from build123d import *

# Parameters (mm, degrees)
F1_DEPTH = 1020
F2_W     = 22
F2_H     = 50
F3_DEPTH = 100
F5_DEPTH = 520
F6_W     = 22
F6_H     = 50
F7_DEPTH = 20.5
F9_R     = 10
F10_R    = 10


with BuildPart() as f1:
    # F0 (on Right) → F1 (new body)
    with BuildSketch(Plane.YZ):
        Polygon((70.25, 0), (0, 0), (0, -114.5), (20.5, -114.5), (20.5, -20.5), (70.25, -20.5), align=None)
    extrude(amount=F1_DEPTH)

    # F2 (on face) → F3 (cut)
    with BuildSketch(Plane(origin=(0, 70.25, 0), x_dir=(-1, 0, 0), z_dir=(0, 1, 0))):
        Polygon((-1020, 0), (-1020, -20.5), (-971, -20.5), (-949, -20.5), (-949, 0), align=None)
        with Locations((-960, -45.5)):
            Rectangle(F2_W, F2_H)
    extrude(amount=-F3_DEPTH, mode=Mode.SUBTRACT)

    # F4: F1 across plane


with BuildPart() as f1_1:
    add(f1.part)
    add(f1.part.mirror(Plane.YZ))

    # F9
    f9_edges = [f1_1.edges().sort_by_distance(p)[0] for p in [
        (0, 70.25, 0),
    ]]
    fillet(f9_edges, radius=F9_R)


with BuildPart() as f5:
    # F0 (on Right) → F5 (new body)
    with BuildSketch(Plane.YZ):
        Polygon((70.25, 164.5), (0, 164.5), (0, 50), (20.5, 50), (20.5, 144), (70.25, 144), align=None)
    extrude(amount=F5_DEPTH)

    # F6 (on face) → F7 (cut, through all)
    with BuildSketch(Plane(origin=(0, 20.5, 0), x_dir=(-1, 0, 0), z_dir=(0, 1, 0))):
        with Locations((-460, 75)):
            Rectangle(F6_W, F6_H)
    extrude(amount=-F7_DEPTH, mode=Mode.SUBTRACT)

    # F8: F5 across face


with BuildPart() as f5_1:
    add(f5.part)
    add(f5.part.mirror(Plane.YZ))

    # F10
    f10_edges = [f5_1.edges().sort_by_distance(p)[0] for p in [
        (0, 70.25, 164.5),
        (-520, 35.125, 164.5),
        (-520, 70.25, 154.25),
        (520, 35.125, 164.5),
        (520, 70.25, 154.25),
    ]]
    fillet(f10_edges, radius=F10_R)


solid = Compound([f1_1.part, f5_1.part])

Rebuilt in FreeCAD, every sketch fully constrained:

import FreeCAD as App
import Part
import Sketcher


def edges_at(feature, points):
    """Names of the edges that pass closest to the given points."""
    edges = feature.Shape.Edges
    near = lambda p: min(range(len(edges)), key=lambda i: edges[i].distToShape(Part.Vertex(*p))[0])
    return sorted({f"Edge{near(p) + 1}" for p in points})

doc = App.newDocument("Part")
body = doc.addObject("PartDesign::Body", "Body")

sketch1 = body.newObject("Sketcher::SketchObject", "Sketch")
sketch1.AttachmentSupport = (doc.getObject("YZ_Plane"), [""])
sketch1.MapMode = "FlatFace"
sketch1.addGeometry([
    Part.LineSegment(App.Vector(70, 0, 0), App.Vector(0, 0, 0)),
    Part.LineSegment(App.Vector(0, 0, 0), App.Vector(0, -114, 0)),
    Part.LineSegment(App.Vector(0, -114, 0), App.Vector(20, -114, 0)),
    Part.LineSegment(App.Vector(20, -114, 0), App.Vector(20, -20, 0)),
    Part.LineSegment(App.Vector(20, -20, 0), App.Vector(70, -20, 0)),
    Part.LineSegment(App.Vector(70, -20, 0), App.Vector(70, 0, 0)),
], False)
sketch1.addConstraint([
    Sketcher.Constraint("Coincident", 0, 2, 1, 1),
    Sketcher.Constraint("Coincident", 1, 2, 2, 1),
    Sketcher.Constraint("Coincident", 2, 2, 3, 1),
    Sketcher.Constraint("Coincident", 3, 2, 4, 1),
    Sketcher.Constraint("Coincident", 4, 2, 5, 1),
    Sketcher.Constraint("Coincident", 5, 2, 0, 1),
    Sketcher.Constraint("Horizontal", 0),
    Sketcher.Constraint("Vertical", 1),
    Sketcher.Constraint("Horizontal", 2),
    Sketcher.Constraint("Vertical", 3),
    Sketcher.Constraint("Horizontal", 4),
    Sketcher.Constraint("Vertical", 5),
    Sketcher.Constraint("Coincident", 0, 2, -1, 1),
    Sketcher.Constraint("Equal", 2, 5),
    Sketcher.Constraint("DistanceY", 3, 1, 3, 2, 94.0),
    Sketcher.Constraint("DistanceX", 2, 1, 2, 2, 20.5),
    Sketcher.Constraint("DistanceX", 0, 2, 0, 1, 70.25),
])
pad1 = body.newObject("PartDesign::Pad", "Pad")
pad1.Profile = sketch1
pad1.Length = 1020

sketch2 = body.newObject("Sketcher::SketchObject", "Sketch001")
sketch2.AttachmentSupport = (doc.getObject("XZ_Plane"), [""])
sketch2.MapMode = "FlatFace"
sketch2.AttachmentOffset = App.Placement(App.Vector(0, 0, -70.25), App.Rotation())
sketch2.addGeometry([
    Part.LineSegment(App.Vector(1020, 0, 0), App.Vector(1020, -20, 0)),
    Part.LineSegment(App.Vector(1020, -20, 0), App.Vector(971, -20, 0)),
    Part.LineSegment(App.Vector(971, -20, 0), App.Vector(971, -70, 0)),
    Part.LineSegment(App.Vector(971, -70, 0), App.Vector(949, -70, 0)),
    Part.LineSegment(App.Vector(949, -70, 0), App.Vector(949, 0, 0)),
    Part.LineSegment(App.Vector(949, 0, 0), App.Vector(1020, 0, 0)),
], False)
sketch2.addConstraint([
    Sketcher.Constraint("Coincident", 0, 2, 1, 1),
    Sketcher.Constraint("Coincident", 1, 2, 2, 1),
    Sketcher.Constraint("Coincident", 2, 2, 3, 1),
    Sketcher.Constraint("Coincident", 3, 2, 4, 1),
    Sketcher.Constraint("Coincident", 4, 2, 5, 1),
    Sketcher.Constraint("Coincident", 5, 2, 0, 1),
    Sketcher.Constraint("Vertical", 0),
    Sketcher.Constraint("Horizontal", 1),
    Sketcher.Constraint("Vertical", 2),
    Sketcher.Constraint("Horizontal", 3),
    Sketcher.Constraint("Vertical", 4),
    Sketcher.Constraint("Horizontal", 5),
    Sketcher.Constraint("PointOnObject", 4, 2, -1),
    Sketcher.Constraint("DistanceX", 1, 2, 1, 1, 49.0),
    Sketcher.Constraint("DistanceX", 3, 2, 3, 1, 22.0),
    Sketcher.Constraint("DistanceY", 2, 2, 2, 1, 50.0),
    Sketcher.Constraint("DistanceY", 0, 2, 0, 1, 20.5),
    Sketcher.Constraint("DistanceX", -1, 1, 0, 2, 1020.0),
])
pocket1 = body.newObject("PartDesign::Pocket", "Pocket")
pocket1.Profile = sketch2
pocket1.Length = 100
pocket1.Reversed = True
body2 = doc.addObject("PartDesign::Body", "Body001")
doc.recompute()

body2.BaseFeature = body
doc.recompute()

mirroring = doc.addObject("Part::Mirroring", "Mirroring")
mirroring.Source = body
mirroring.Base = App.Vector(0, 0, 0)
mirroring.Normal = App.Vector(1, 0, 0)
body3 = doc.addObject("PartDesign::Body", "Body002")
body3.BaseFeature = mirroring
boolean = body2.newObject("PartDesign::Boolean", "Boolean")
boolean.Type = "Fuse"
boolean.addObjects([body3])
doc.recompute()

fillet = body2.newObject("PartDesign::Fillet", "Fillet")
fillet.Base = (boolean, edges_at(boolean, [(0, 70.25, 0)]))
fillet.Radius = 10
body4 = doc.addObject("PartDesign::Body", "Body003")

sketch3 = body4.newObject("Sketcher::SketchObject", "Sketch002")
sketch3.AttachmentSupport = (doc.getObject("YZ_Plane003"), [""])
sketch3.MapMode = "FlatFace"
sketch3.addGeometry([
    Part.LineSegment(App.Vector(70, 164, 0), App.Vector(0, 164, 0)),
    Part.LineSegment(App.Vector(0, 164, 0), App.Vector(0, 50, 0)),
    Part.LineSegment(App.Vector(0, 50, 0), App.Vector(20, 50, 0)),
    Part.LineSegment(App.Vector(20, 50, 0), App.Vector(20, 144, 0)),
    Part.LineSegment(App.Vector(20, 144, 0), App.Vector(70, 144, 0)),
    Part.LineSegment(App.Vector(70, 144, 0), App.Vector(70, 164, 0)),
], False)
sketch3.addConstraint([
    Sketcher.Constraint("Coincident", 0, 2, 1, 1),
    Sketcher.Constraint("Coincident", 1, 2, 2, 1),
    Sketcher.Constraint("Coincident", 2, 2, 3, 1),
    Sketcher.Constraint("Coincident", 3, 2, 4, 1),
    Sketcher.Constraint("Coincident", 4, 2, 5, 1),
    Sketcher.Constraint("Coincident", 5, 2, 0, 1),
    Sketcher.Constraint("Horizontal", 0),
    Sketcher.Constraint("Vertical", 1),
    Sketcher.Constraint("Horizontal", 2),
    Sketcher.Constraint("Vertical", 3),
    Sketcher.Constraint("Horizontal", 4),
    Sketcher.Constraint("Vertical", 5),
    Sketcher.Constraint("PointOnObject", 0, 2, -2),
    Sketcher.Constraint("Equal", 2, 5),
    Sketcher.Constraint("DistanceY", 3, 1, 3, 2, 94.0),
    Sketcher.Constraint("DistanceX", 2, 1, 2, 2, 20.5),
    Sketcher.Constraint("DistanceY", -1, 1, 1, 2, 50.0),
    Sketcher.Constraint("DistanceX", 0, 2, 0, 1, 70.25),
])
pad2 = body4.newObject("PartDesign::Pad", "Pad001")
pad2.Profile = sketch3
pad2.Length = 520

sketch4 = body4.newObject("Sketcher::SketchObject", "Sketch003")
sketch4.AttachmentSupport = (doc.getObject("XZ_Plane003"), [""])
sketch4.MapMode = "FlatFace"
sketch4.AttachmentOffset = App.Placement(App.Vector(0, 0, -20.5), App.Rotation())
sketch4.addGeometry([
    Part.LineSegment(App.Vector(471, 100, 0), App.Vector(471, 50, 0)),
    Part.LineSegment(App.Vector(471, 50, 0), App.Vector(449, 50, 0)),
    Part.LineSegment(App.Vector(449, 50, 0), App.Vector(449, 100, 0)),
    Part.LineSegment(App.Vector(449, 100, 0), App.Vector(471, 100, 0)),
], False)
sketch4.addConstraint([
    Sketcher.Constraint("Coincident", 0, 2, 1, 1),
    Sketcher.Constraint("Coincident", 1, 2, 2, 1),
    Sketcher.Constraint("Coincident", 2, 2, 3, 1),
    Sketcher.Constraint("Coincident", 3, 2, 0, 1),
    Sketcher.Constraint("Vertical", 0),
    Sketcher.Constraint("Horizontal", 1),
    Sketcher.Constraint("Vertical", 2),
    Sketcher.Constraint("Horizontal", 3),
    Sketcher.Constraint("DistanceX", 1, 2, 1, 1, 22.0),
    Sketcher.Constraint("DistanceY", 0, 2, 0, 1, 50.0),
    Sketcher.Constraint("DistanceX", -1, 1, 0, 2, 471.0),
    Sketcher.Constraint("DistanceY", -1, 1, 0, 2, 50.0),
])
pocket2 = body4.newObject("PartDesign::Pocket", "Pocket001")
pocket2.Profile = sketch4
pocket2.Type = "ThroughAll"
pocket2.Reversed = True
body5 = doc.addObject("PartDesign::Body", "Body004")
doc.recompute()

body5.BaseFeature = body4
doc.recompute()

mirroring2 = doc.addObject("Part::Mirroring", "Mirroring001")
mirroring2.Source = body4
mirroring2.Base = App.Vector(0, 0, 0)
mirroring2.Normal = App.Vector(1, 0, 0)
body6 = doc.addObject("PartDesign::Body", "Body005")
body6.BaseFeature = mirroring2
boolean2 = body5.newObject("PartDesign::Boolean", "Boolean001")
boolean2.Type = "Fuse"
boolean2.addObjects([body6])
doc.recompute()

fillet2 = body5.newObject("PartDesign::Fillet", "Fillet001")
fillet2.Base = (boolean2, edges_at(boolean2, [
    (0, 70.25, 164.5),
    (-520, 35.125, 164.5),
    (-520, 70.25, 154.25),
    (520, 35.125, 164.5),
    (520, 70.25, 154.25),
]))
fillet2.Radius = 10
mirroring.Visibility = False
mirroring2.Visibility = False

doc.recompute()
